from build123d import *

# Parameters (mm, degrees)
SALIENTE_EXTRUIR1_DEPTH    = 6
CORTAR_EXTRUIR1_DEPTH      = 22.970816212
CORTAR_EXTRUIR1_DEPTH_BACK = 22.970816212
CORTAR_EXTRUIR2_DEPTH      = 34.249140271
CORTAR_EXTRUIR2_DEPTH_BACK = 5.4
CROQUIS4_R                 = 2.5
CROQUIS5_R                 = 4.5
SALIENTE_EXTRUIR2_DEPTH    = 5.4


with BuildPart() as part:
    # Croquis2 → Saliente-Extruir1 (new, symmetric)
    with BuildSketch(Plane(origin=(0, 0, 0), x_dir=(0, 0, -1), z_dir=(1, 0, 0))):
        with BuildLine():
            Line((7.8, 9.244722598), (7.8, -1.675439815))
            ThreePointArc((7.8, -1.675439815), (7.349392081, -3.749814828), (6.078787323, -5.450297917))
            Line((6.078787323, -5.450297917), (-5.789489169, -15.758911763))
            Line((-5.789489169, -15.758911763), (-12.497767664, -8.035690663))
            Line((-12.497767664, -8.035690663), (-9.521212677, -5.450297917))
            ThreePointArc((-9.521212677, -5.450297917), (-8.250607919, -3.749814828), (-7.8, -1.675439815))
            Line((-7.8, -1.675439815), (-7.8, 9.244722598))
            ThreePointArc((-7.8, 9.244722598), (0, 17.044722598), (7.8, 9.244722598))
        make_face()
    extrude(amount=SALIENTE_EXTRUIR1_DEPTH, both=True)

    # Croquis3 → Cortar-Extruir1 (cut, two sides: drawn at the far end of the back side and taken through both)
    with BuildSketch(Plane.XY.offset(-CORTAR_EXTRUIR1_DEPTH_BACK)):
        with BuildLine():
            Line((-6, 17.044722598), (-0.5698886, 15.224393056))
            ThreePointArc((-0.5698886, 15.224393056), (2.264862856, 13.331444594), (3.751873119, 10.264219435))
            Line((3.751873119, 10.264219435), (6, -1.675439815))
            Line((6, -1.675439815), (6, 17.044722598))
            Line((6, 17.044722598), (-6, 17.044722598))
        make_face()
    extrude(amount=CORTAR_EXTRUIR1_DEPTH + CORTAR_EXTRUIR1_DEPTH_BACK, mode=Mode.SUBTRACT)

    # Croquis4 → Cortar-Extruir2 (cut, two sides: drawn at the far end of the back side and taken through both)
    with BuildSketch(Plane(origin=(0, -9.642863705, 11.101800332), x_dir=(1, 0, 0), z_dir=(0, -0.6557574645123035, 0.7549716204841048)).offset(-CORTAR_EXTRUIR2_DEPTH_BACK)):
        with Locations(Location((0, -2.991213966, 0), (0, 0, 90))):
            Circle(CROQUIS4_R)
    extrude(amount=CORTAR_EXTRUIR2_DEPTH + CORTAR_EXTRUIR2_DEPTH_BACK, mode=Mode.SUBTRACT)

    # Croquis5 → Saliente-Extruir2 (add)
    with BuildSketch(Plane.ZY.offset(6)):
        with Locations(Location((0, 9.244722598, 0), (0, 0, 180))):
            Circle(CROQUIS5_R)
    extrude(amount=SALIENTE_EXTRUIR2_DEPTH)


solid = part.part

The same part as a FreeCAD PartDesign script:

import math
import FreeCAD as App
import Part
import Sketcher
Q = App.Units.Quantity

doc = App.newDocument("Part")
body = doc.addObject("PartDesign::Body", "Body")

# Sketch on YZ plane
sketch1 = body.newObject("Sketcher::SketchObject", "Sketch")
sketch1.AttachmentSupport = (doc.getObject("YZ_Plane"), [""])
sketch1.MapMode = "FlatFace"
sketch1.addGeometry([
    Part.LineSegment(App.Vector(-1.7, -7.8, 0), App.Vector(9.2, -7.8, 0)),  # 0
    Part.ArcOfCircle(Part.Circle(App.Vector(9.2, 0, 0), App.Vector(0, 0, 1), 7.8), math.radians(-90), math.radians(90)),  # 1
    Part.LineSegment(App.Vector(9.2, 7.8, 0), App.Vector(-1.7, 7.8, 0)),  # 2
    Part.ArcOfCircle(Part.Circle(App.Vector(-1.7, 12.8, 0), App.Vector(0, 0, 1), 5), math.radians(-139), math.radians(-90)),  # 3
    Part.LineSegment(App.Vector(-5.5, 9.5, 0), App.Vector(-8, 12.5, 0)),  # 4
    Part.LineSegment(App.Vector(-8, 12.5, 0), App.Vector(-15.8, 5.8, 0)),  # 5
    Part.LineSegment(App.Vector(-15.8, 5.8, 0), App.Vector(-5.5, -6.1, 0)),  # 6
    Part.ArcOfCircle(Part.Circle(App.Vector(-1.7, -2.8, 0), App.Vector(0, 0, 1), 5), math.radians(-139), math.radians(-90)),  # 7
], False)
sketch1.addConstraint([
    Sketcher.Constraint("Tangent", 0, 2, 1, 1),
    Sketcher.Constraint("Tangent", 1, 2, 2, 1),
    Sketcher.Constraint("Tangent", 2, 2, 3, 2),
    Sketcher.Constraint("Tangent", 3, 1, 4, 1),
    Sketcher.Constraint("Coincident", 4, 2, 5, 1),
    Sketcher.Constraint("Coincident", 5, 2, 6, 1),
    Sketcher.Constraint("Tangent", 6, 2, 7, 1),
    Sketcher.Constraint("Tangent", 7, 2, 0, 1),
    Sketcher.Constraint("Horizontal", 0),
    Sketcher.Constraint("Horizontal", 2),
    Sketcher.Constraint("Equal", 3, 7),
    Sketcher.Constraint("Symmetric", 2, 2, 7, 2, -1),
    Sketcher.Constraint("Perpendicular", 4, 5),
    Sketcher.Constraint("Perpendicular", 5, 6),
    Sketcher.Constraint("Radius", 3, Q("5 mm")),
    Sketcher.Constraint("Radius", 1, Q("7.8 mm")),
    Sketcher.Constraint("DistanceX", 0, 1, 0, 2, Q("10.920162 mm")),
    Sketcher.Constraint("DistanceX", 3, 3, -1, 1, Q("1.67544 mm")),
    Sketcher.Constraint("DistanceX", 4, 2, -1, 1, Q("8.035691 mm")),
    Sketcher.Constraint("DistanceX", 5, 2, -1, 1, Q("15.758912 mm")),
])
pad1 = body.newObject("PartDesign::Pad", "Pad")
pad1.Profile = sketch1
pad1.Length = 12
pad1.Midplane = True

# Sketch on XY plane
sketch2 = body.newObject("Sketcher::SketchObject", "Sketch001")
sketch2.AttachmentSupport = (doc.getObject("XY_Plane"), [""])
sketch2.MapMode = "FlatFace"
sketch2.addGeometry([
    Part.LineSegment(App.Vector(-6, 17, 0), App.Vector(-1, 15, 0)),  # 0
    Part.ArcOfCircle(Part.Circle(App.Vector(-3, 9, 0), App.Vector(0, 0, 1), 7), math.radians(11), math.radians(71)),  # 1
    Part.LineSegment(App.Vector(4, 10, 0), App.Vector(6, -2, 0)),  # 2
    Part.LineSegment(App.Vector(6, -2, 0), App.Vector(6, 17, 0)),  # 3
    Part.LineSegment(App.Vector(6, 17, 0), App.Vector(-6, 17, 0)),  # 4
], False)
sketch2.addConstraint([
    Sketcher.Constraint("Tangent", 0, 2, 1, 2),
    Sketcher.Constraint("Tangent", 1, 1, 2, 1),
    Sketcher.Constraint("Coincident", 2, 2, 3, 1),
    Sketcher.Constraint("Coincident", 3, 2, 4, 1),
    Sketcher.Constraint("Coincident", 4, 2, 0, 1),
    Sketcher.Constraint("Vertical", 3),
    Sketcher.Constraint("Horizontal", 4),
    Sketcher.Constraint("Radius", 1, Q("6.5 mm")),
    Sketcher.Constraint("DistanceX", 4, 2, 4, 1, Q("12 mm")),
    Sketcher.Constraint("DistanceX", -1, 1, 2, 2, Q("6 mm")),
    Sketcher.Constraint("DistanceY", 3, 1, 3, 2, Q("18.720162 mm")),
    Sketcher.Constraint("DistanceX", 1, 3, -1, 1, Q("2.635879 mm")),
    Sketcher.Constraint("DistanceX", 0, 2, -1, 1, Q("0.569889 mm")),
    Sketcher.Constraint("DistanceY", -1, 1, 1, 1, Q("10.264219 mm")),
])
pocket1 = body.newObject("PartDesign::Pocket", "Pocket")
pocket1.Profile = sketch2
pocket1.Type = "ThroughAll"
pocket1.Midplane = True

# Sketch on an angled plane
sketch3 = body.newObject("Sketcher::SketchObject", "Sketch002")
sketch3.Placement = App.Placement(App.Vector(0, -9.642864, 11.1018), App.Rotation(App.Vector(1, 0, 0), App.Vector(0, 0.75497162, 0.655757465), App.Vector(0, -0.655757465, 0.75497162), "ZXY"))
sketch3.addGeometry(Part.Circle(App.Vector(0, -3, 0), App.Vector(0, 0, 1), 2.5), False)
sketch3.addConstraint([
    Sketcher.Constraint("PointOnObject", 0, 3, -2),
    Sketcher.Constraint("Diameter", 0, Q("5 mm")),
    Sketcher.Constraint("DistanceY", 0, 3, -1, 1, Q("2.991214 mm")),
])
pocket2 = body.newObject("PartDesign::Pocket", "Pocket001")
pocket2.Profile = sketch3
pocket2.Type = "TwoLengths"
pocket2.Length = 34.24914
pocket2.Length2 = 5.4
pocket2.Reversed = True

# Sketch on YZ plane
sketch4 = body.newObject("Sketcher::SketchObject", "Sketch003")
sketch4.AttachmentSupport = (doc.getObject("YZ_Plane"), [""])
sketch4.MapMode = "FlatFace"
sketch4.AttachmentOffset = App.Placement(App.Vector(0, 0, -6), App.Rotation())
sketch4.addGeometry(Part.Circle(App.Vector(9.2, 0, 0), App.Vector(0, 0, 1), 4.5), False)
sketch4.addConstraint([
    Sketcher.Constraint("PointOnObject", 0, 3, -1),
    Sketcher.Constraint("Diameter", 0, Q("9 mm")),
    Sketcher.Constraint("DistanceX", -1, 1, 0, 3, Q("9.244723 mm")),
])
pad2 = body.newObject("PartDesign::Pad", "Pad001")
pad2.Profile = sketch4
pad2.Length = 5.4
pad2.Reversed = True

doc.recompute()
